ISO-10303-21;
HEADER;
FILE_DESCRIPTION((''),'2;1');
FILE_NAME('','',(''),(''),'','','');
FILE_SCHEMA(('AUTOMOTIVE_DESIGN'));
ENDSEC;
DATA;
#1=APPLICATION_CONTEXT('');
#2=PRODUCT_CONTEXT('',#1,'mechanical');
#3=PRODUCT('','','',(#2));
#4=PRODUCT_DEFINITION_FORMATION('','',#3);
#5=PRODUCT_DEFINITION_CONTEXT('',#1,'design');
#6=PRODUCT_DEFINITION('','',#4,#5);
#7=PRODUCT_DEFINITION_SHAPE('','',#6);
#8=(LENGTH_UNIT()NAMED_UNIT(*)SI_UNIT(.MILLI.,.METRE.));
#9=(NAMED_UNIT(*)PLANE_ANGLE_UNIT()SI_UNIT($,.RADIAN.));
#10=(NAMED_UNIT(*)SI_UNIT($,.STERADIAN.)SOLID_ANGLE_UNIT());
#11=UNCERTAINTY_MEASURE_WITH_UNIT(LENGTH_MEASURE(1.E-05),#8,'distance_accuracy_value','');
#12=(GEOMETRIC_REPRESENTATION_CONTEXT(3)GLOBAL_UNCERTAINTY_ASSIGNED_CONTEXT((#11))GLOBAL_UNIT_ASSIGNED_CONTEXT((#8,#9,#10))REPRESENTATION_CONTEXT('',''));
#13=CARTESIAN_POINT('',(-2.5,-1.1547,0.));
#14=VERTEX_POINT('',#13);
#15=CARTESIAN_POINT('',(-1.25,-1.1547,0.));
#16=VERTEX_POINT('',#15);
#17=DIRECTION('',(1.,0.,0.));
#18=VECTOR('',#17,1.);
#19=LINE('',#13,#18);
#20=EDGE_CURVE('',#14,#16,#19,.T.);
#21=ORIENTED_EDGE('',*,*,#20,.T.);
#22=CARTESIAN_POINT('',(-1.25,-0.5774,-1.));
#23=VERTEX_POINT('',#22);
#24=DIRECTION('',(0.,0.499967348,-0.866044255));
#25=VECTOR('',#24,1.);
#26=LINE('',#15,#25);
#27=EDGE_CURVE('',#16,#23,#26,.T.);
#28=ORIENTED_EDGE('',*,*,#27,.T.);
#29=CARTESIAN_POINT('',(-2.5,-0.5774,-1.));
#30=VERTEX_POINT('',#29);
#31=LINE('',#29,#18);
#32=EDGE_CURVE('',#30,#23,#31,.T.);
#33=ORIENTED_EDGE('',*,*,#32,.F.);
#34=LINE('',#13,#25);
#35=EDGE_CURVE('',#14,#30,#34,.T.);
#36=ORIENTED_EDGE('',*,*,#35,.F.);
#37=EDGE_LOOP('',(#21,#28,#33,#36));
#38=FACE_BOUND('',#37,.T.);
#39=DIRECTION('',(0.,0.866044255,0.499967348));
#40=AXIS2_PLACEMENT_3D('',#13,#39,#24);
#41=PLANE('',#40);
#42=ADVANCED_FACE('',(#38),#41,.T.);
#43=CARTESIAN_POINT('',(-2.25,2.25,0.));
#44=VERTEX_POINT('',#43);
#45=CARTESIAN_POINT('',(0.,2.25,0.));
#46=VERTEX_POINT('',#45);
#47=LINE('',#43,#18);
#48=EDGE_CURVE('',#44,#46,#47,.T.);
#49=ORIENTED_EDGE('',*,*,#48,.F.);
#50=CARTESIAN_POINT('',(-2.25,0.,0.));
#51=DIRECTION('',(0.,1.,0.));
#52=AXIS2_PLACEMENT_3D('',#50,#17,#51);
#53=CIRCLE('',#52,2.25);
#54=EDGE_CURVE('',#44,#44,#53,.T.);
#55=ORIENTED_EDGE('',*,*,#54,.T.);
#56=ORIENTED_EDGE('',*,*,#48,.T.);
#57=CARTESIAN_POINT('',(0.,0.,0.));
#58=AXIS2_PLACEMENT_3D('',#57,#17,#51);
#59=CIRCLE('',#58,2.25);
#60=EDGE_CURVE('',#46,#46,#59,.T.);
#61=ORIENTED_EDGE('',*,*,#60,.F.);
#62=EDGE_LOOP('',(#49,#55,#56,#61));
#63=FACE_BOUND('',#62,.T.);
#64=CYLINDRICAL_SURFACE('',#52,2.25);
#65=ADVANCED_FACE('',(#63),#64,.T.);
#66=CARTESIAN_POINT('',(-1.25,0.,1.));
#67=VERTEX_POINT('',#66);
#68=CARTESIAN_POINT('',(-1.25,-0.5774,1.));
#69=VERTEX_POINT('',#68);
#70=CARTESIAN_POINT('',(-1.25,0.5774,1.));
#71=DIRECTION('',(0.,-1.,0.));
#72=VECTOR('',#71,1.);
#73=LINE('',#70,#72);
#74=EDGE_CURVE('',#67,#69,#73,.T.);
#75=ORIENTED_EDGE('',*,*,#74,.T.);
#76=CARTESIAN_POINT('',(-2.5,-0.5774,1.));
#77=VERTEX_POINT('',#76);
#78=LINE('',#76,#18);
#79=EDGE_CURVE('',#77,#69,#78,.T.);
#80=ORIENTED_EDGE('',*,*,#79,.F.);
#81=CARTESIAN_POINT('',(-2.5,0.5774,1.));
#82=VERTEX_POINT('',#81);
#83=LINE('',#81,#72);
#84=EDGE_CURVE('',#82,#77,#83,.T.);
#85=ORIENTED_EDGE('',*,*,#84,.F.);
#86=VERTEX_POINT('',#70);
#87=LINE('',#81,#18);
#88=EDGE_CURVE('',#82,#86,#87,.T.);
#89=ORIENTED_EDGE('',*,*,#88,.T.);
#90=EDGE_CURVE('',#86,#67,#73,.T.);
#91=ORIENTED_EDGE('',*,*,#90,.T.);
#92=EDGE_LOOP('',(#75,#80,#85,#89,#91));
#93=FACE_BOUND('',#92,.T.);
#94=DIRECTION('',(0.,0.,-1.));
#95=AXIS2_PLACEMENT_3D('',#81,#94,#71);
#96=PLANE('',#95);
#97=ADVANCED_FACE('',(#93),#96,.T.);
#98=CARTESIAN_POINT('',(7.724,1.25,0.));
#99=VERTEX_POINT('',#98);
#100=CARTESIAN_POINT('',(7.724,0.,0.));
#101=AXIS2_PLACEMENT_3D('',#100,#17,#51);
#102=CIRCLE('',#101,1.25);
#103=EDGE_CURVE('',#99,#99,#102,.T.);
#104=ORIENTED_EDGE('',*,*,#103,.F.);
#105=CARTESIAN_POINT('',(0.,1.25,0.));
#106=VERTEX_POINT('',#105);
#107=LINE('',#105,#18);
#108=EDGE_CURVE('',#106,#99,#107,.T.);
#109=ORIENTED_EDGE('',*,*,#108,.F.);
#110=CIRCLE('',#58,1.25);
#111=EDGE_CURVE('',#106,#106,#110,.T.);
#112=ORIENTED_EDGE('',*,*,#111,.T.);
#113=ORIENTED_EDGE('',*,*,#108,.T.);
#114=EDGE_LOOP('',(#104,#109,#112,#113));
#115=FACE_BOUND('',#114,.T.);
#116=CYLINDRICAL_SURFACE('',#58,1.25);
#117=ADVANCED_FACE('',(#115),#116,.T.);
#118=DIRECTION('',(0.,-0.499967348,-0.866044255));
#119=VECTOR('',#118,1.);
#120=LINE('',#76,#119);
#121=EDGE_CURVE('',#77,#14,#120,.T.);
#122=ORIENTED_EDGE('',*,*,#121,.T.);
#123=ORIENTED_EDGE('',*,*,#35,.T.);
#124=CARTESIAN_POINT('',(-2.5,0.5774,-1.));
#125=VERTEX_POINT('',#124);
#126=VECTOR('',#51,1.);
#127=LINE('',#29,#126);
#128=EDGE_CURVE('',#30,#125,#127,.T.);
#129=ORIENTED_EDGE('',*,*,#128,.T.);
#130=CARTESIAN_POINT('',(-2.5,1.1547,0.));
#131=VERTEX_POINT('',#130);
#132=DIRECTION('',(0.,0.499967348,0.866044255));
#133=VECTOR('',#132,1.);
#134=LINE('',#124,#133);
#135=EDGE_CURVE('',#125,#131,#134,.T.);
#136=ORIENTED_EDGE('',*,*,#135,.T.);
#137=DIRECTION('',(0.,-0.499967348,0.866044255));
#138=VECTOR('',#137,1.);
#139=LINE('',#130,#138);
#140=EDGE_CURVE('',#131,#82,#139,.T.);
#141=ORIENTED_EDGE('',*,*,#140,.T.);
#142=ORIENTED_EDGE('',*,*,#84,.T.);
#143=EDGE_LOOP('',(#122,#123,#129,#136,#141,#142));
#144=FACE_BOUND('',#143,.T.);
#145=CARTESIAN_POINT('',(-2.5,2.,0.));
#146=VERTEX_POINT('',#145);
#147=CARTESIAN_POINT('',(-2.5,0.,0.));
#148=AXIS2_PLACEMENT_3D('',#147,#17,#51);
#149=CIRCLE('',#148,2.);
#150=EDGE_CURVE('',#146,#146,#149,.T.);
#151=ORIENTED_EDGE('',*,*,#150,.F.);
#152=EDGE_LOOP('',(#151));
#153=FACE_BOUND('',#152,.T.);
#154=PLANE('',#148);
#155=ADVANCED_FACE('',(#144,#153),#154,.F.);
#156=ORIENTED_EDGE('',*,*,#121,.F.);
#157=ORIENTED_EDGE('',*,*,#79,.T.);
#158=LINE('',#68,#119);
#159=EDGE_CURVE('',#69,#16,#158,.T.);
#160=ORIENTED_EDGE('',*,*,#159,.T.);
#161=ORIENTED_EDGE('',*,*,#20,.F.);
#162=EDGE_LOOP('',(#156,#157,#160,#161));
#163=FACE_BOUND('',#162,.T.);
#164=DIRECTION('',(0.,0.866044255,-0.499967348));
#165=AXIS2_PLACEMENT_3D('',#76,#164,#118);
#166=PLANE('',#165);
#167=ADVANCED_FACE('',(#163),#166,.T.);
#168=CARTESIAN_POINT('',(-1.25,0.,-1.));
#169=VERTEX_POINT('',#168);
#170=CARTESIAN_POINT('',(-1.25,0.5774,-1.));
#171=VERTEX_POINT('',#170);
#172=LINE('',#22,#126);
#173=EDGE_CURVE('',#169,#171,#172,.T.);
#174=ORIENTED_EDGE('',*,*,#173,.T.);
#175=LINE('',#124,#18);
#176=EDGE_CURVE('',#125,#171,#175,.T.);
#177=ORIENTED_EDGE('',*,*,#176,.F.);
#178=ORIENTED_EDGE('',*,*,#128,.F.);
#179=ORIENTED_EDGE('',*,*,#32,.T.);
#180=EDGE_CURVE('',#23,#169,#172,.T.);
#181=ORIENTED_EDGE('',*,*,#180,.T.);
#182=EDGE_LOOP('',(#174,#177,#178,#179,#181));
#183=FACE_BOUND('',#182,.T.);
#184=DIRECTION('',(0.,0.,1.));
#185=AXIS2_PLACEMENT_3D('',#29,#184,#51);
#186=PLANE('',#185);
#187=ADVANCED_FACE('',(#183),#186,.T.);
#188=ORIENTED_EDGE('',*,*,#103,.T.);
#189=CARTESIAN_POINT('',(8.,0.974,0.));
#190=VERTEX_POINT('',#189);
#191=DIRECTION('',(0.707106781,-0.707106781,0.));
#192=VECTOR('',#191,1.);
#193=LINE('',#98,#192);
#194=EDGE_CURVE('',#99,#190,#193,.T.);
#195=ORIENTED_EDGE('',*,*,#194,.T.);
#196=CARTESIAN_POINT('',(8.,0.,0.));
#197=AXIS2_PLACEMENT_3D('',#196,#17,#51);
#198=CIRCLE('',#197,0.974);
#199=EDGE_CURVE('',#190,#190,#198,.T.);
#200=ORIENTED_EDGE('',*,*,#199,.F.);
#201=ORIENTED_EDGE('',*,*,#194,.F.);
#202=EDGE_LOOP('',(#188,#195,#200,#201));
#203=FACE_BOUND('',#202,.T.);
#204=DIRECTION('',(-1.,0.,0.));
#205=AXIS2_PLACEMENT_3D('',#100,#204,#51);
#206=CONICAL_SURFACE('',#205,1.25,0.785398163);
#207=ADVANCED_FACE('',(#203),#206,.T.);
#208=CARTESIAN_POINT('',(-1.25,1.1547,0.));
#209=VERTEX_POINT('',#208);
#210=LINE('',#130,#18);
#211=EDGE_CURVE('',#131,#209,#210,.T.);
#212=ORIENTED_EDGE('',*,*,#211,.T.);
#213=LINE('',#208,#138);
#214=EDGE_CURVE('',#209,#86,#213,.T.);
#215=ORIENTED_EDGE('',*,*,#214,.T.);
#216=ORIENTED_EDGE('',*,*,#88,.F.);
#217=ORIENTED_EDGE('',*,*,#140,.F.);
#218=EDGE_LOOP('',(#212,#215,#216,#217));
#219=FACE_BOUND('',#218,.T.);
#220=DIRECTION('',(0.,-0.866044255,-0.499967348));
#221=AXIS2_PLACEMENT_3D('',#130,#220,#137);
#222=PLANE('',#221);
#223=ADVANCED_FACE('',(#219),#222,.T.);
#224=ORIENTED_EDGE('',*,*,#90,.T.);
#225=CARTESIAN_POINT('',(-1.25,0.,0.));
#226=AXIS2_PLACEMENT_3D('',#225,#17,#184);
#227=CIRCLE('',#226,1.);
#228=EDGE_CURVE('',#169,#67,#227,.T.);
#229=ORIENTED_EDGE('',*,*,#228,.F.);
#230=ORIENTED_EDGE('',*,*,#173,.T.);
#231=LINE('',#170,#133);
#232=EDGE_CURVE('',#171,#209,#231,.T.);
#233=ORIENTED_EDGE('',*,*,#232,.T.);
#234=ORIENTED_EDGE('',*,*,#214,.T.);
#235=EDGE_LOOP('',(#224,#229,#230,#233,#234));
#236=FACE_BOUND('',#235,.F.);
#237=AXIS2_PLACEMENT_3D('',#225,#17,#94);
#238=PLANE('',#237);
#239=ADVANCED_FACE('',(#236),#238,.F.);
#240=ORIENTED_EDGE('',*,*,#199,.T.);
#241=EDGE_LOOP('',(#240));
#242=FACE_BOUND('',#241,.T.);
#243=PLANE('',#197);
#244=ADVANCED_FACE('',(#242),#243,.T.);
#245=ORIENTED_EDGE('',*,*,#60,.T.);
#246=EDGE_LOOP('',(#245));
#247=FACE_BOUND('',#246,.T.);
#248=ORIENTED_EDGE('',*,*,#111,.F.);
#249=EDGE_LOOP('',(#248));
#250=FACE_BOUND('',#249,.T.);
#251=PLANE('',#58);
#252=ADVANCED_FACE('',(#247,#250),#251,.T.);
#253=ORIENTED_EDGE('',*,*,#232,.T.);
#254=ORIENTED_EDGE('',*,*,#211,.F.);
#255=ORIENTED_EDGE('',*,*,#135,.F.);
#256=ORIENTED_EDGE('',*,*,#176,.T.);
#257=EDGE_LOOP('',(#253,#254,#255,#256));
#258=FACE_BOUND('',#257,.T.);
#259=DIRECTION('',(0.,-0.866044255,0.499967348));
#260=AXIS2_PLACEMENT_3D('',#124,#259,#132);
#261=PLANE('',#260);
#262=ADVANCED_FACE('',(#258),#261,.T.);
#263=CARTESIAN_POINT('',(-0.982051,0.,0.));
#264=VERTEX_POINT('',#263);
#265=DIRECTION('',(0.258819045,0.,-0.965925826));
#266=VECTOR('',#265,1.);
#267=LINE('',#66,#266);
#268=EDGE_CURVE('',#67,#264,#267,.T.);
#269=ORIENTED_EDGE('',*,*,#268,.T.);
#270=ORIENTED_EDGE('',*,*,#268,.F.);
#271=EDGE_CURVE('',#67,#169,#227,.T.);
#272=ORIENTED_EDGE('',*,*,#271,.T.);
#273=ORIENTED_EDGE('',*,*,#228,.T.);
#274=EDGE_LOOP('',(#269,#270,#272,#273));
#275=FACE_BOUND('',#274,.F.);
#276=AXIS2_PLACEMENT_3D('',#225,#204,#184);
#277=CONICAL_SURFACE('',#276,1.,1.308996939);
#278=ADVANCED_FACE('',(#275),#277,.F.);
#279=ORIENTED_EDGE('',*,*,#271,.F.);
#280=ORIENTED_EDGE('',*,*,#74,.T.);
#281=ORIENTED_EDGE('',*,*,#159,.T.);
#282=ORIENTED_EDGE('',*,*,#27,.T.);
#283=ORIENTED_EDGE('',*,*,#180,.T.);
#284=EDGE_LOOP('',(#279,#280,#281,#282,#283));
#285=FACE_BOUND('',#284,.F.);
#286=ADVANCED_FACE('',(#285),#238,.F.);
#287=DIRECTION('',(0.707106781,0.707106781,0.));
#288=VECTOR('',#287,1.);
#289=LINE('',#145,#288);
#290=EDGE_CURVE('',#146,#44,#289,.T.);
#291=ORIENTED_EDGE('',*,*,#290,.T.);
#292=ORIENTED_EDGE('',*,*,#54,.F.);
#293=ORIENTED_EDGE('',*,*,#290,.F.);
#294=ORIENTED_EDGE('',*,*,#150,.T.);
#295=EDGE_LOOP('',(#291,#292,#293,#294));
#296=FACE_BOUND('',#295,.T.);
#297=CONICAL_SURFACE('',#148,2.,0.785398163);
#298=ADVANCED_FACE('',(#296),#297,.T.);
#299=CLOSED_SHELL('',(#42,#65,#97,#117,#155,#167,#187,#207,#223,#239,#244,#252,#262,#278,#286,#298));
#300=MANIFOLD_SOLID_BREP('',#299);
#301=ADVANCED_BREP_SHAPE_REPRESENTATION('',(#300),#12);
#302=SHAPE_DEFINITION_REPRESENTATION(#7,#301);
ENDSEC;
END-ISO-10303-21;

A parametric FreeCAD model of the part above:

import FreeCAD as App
import Part
import Sketcher
Q = App.Units.Quantity


def add_polygon(sketch, points):
    """Adds a closed chain of lines whose ends are joined by coincident constraints."""
    first, n = sketch.GeometryCount, len(points)
    for a, b in zip(points, points[1:] + points[:1]):
        sketch.addGeometry(Part.LineSegment(App.Vector(*a, 0), App.Vector(*b, 0)), False)
    for i in range(n):
        sketch.addConstraint(Sketcher.Constraint("Coincident", first + i, 2, first + (i + 1) % n, 1))

doc = App.newDocument("Part")
params = doc.addObject("Spreadsheet::Sheet", "Params")
for row, (alias, value) in enumerate([
    ("sketch1_height", "1 mm"),
    ("sketch1_height2", "2 mm"),
    ("sketch1_width", "10.5 mm"),
    ("sketch1_width2", "2.25 mm"),
    ("revolution_angle", "360 deg"),
    ("sketch2_diameter", "2 mm"),
    ("hole_diameter", "2 mm"),
    ("hole_depth", "1.25 mm"),
    ("pocket1_length", "1.25 mm"),
], start=1):
    params.set(f"A{row}", alias)
    params.set(f"B{row}", "=" + value)
    params.setAlias(f"B{row}", alias)

body = doc.addObject("PartDesign::Body", "Body")

# Sketch on XY plane
sketch1 = body.newObject("Sketcher::SketchObject", "Sketch")
sketch1.AttachmentSupport = (doc.getObject("XY_Plane"), [""])
sketch1.MapMode = "FlatFace"
add_polygon(sketch1, [(-2.5, 0), (8, 0), (8, 0.974), (7.724, 1.25), (0, 1.25), (0, 2.25), (-2.25, 2.25), (-2.5, 2)])  # lines 0-7
sketch1.addConstraint(Sketcher.Constraint("Horizontal", 0))
sketch1.addConstraint(Sketcher.Constraint("Vertical", 1))
sketch1.addConstraint(Sketcher.Constraint("Horizontal", 3))
sketch1.addConstraint(Sketcher.Constraint("Vertical", 4))
sketch1.addConstraint(Sketcher.Constraint("Horizontal", 5))
sketch1.addConstraint(Sketcher.Constraint("Vertical", 7))
sketch1.addConstraint(Sketcher.Constraint("PointOnObject", 0, 2, -1))
sketch1.addConstraint(Sketcher.Constraint("PointOnObject", 3, 2, -2))
sketch1.addConstraint(Sketcher.Constraint("Perpendicular", 2, 6))
sketch1.addConstraint(Sketcher.Constraint("DistanceY", 4, 1, 4, 2, 1.0))
sketch1.addConstraint(Sketcher.Constraint("DistanceY", 7, 2, 7, 1, 2.0))
sketch1.addConstraint(Sketcher.Constraint("Angle", 2, Q("135 deg")))
sketch1.addConstraint(Sketcher.Constraint("DistanceX", 0, 1, 0, 2, 10.5))
sketch1.addConstraint(Sketcher.Constraint("DistanceX", -1, 1, 0, 2, 8.0))
sketch1.addConstraint(Sketcher.Constraint("DistanceX", 5, 2, 5, 1, 2.25))
sketch1.addConstraint(Sketcher.Constraint("DistanceX", 3, 2, 3, 1, 7.724))
sketch1.setExpression("Constraints[17]", "Params.sketch1_height")
sketch1.setExpression("Constraints[18]", "Params.sketch1_height2")
sketch1.setExpression("Constraints[20]", "Params.sketch1_width")
sketch1.setExpression("Constraints[22]", "Params.sketch1_width2")
revolution = body.newObject("PartDesign::Revolution", "Revolution")
revolution.Profile = sketch1
revolution.ReferenceAxis = (sketch1, ["H_Axis"])
revolution.setExpression("Angle", "Params.revolution_angle")

# Sketch on YZ plane
sketch2 = body.newObject("Sketcher::SketchObject", "Sketch001")
sketch2.AttachmentSupport = (doc.getObject("YZ_Plane"), [""])
sketch2.MapMode = "FlatFace"
sketch2.AttachmentOffset = App.Placement(App.Vector(0, 0, -2.5), App.Rotation())
sketch2.addGeometry(Part.Circle(App.Vector(0, 0, 0), App.Vector(0, 0, 1), 1), False)
sketch2.addConstraint(Sketcher.Constraint("Coincident", 0, 3, -1, 1))
sketch2.addConstraint(Sketcher.Constraint("Diameter", 0, 2.0))
sketch2.setExpression("Constraints[1]", "Params.sketch2_diameter")
doc.recompute()
hole = body.newObject("PartDesign::Hole", "Hole")
hole.Profile = sketch2
hole.ThreadType = "None"
hole.setExpression("Diameter", "Params.hole_diameter")
hole.DepthType = "Dimension"
hole.setExpression("Depth", "Params.hole_depth")
hole.DrillPoint = "Angled"
hole.DrillPointAngle = 150
hole.Reversed = True

# Sketch on YZ plane
sketch3 = body.newObject("Sketcher::SketchObject", "Sketch002")
sketch3.AttachmentSupport = (doc.getObject("YZ_Plane"), [""])
sketch3.MapMode = "FlatFace"
sketch3.AttachmentOffset = App.Placement(App.Vector(0, 0, -2.5), App.Rotation())
add_polygon(sketch3, [(0.5774, 1), (-0.5774, 1), (-1.1547, 0), (-0.5774, -1), (0.5774, -1), (1.1547, 0)])  # lines 0-5
sketch3.addConstraint(Sketcher.Constraint("Horizontal", 0))
sketch3.addConstraint(Sketcher.Constraint("Horizontal", 3))
sketch3.addConstraint(Sketcher.Constraint("Symmetric", 0, 2, 3, 2, -1, 1))
sketch3.addConstraint(Sketcher.Constraint("Symmetric", 1, 2, 4, 2, -1, 1))
sketch3.addConstraint(Sketcher.Constraint("PointOnObject", 1, 2, -1))
sketch3.addConstraint(Sketcher.Constraint("Parallel", 2, 5))
sketch3.addConstraint(Sketcher.Constraint("Vertical", 0, 2, 2, 2))
sketch3.addConstraint(Sketcher.Constraint("DistanceY", -1, 1, 0, 2, 1.0))
sketch3.addConstraint(Sketcher.Constraint("DistanceX", 0, 2, 0, 1, 1.1548))
sketch3.addConstraint(Sketcher.Constraint("DistanceX", 1, 2, 3, 2, 1.732))
pocket1 = body.newObject("PartDesign::Pocket", "Pocket")
pocket1.Profile = sketch3
pocket1.setExpression("Length", "Params.pocket1_length")
pocket1.Reversed = True

doc.recompute()
